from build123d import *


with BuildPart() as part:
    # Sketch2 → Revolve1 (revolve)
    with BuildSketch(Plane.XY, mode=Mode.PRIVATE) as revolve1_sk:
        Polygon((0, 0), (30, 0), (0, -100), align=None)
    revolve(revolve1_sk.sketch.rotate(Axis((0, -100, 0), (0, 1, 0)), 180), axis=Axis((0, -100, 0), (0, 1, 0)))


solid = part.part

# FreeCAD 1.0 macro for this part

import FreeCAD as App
import Part
import Sketcher
from FreeCAD import Vector


def add_polygon(sketch, points):
    """Adds a closed chain of lines whose ends are joined by coincident constraints."""
    first, n = sketch.GeometryCount, len(points)
    for a, b in zip(points, points[1:] + points[:1]):
        sketch.addGeometry(Part.LineSegment(App.Vector(*a, 0), App.Vector(*b, 0)), False)
    for i in range(n):
        sketch.addConstraint(Sketcher.Constraint("Coincident", first + i, 2, first + (i + 1) % n, 1))

doc = App.newDocument("Part")
params = doc.addObject("Spreadsheet::Sheet", "Params")
for row, (alias, value) in enumerate([
    ("sketch1_width", "30 mm"),
    ("sketch1_height", "100 mm"),
    ("revolution_angle", "360 deg"),
], start=1):
    params.set(f"A{row}", alias)
    params.set(f"B{row}", "=" + value)
    params.setAlias(f"B{row}", alias)

body = doc.addObject("PartDesign::Body", "Body")

sketch1 = body.newObject("Sketcher::SketchObject", "Sketch")
sketch1.AttachmentSupport = (doc.getObject("XY_Plane"), [""])
sketch1.MapMode = "FlatFace"
add_polygon(sketch1, [(30, 0), (0, 0), (0, -100)])
sketch1.addConstraint([
    Sketcher.Constraint("Horizontal", 0),
    Sketcher.Constraint("Vertical", 1),
    Sketcher.Constraint("Coincident", 0, 2, -1, 1),
    Sketcher.Constraint("DistanceX", 0, 2, 0, 1, 30.0),
    Sketcher.Constraint("DistanceY", 1, 2, 1, 1, 100.0),
])
sketch1.setExpression("Constraints[6]", "Params.sketch1_width")
sketch1.setExpression("Constraints[7]", "Params.sketch1_height")
revolution = body.newObject("PartDesign::Revolution", "Revolution")
revolution.Profile = sketch1
revolution.ReferenceAxis = (sketch1, ["V_Axis"])
revolution.setExpression("Angle", "Params.revolution_angle")

doc.recompute()
